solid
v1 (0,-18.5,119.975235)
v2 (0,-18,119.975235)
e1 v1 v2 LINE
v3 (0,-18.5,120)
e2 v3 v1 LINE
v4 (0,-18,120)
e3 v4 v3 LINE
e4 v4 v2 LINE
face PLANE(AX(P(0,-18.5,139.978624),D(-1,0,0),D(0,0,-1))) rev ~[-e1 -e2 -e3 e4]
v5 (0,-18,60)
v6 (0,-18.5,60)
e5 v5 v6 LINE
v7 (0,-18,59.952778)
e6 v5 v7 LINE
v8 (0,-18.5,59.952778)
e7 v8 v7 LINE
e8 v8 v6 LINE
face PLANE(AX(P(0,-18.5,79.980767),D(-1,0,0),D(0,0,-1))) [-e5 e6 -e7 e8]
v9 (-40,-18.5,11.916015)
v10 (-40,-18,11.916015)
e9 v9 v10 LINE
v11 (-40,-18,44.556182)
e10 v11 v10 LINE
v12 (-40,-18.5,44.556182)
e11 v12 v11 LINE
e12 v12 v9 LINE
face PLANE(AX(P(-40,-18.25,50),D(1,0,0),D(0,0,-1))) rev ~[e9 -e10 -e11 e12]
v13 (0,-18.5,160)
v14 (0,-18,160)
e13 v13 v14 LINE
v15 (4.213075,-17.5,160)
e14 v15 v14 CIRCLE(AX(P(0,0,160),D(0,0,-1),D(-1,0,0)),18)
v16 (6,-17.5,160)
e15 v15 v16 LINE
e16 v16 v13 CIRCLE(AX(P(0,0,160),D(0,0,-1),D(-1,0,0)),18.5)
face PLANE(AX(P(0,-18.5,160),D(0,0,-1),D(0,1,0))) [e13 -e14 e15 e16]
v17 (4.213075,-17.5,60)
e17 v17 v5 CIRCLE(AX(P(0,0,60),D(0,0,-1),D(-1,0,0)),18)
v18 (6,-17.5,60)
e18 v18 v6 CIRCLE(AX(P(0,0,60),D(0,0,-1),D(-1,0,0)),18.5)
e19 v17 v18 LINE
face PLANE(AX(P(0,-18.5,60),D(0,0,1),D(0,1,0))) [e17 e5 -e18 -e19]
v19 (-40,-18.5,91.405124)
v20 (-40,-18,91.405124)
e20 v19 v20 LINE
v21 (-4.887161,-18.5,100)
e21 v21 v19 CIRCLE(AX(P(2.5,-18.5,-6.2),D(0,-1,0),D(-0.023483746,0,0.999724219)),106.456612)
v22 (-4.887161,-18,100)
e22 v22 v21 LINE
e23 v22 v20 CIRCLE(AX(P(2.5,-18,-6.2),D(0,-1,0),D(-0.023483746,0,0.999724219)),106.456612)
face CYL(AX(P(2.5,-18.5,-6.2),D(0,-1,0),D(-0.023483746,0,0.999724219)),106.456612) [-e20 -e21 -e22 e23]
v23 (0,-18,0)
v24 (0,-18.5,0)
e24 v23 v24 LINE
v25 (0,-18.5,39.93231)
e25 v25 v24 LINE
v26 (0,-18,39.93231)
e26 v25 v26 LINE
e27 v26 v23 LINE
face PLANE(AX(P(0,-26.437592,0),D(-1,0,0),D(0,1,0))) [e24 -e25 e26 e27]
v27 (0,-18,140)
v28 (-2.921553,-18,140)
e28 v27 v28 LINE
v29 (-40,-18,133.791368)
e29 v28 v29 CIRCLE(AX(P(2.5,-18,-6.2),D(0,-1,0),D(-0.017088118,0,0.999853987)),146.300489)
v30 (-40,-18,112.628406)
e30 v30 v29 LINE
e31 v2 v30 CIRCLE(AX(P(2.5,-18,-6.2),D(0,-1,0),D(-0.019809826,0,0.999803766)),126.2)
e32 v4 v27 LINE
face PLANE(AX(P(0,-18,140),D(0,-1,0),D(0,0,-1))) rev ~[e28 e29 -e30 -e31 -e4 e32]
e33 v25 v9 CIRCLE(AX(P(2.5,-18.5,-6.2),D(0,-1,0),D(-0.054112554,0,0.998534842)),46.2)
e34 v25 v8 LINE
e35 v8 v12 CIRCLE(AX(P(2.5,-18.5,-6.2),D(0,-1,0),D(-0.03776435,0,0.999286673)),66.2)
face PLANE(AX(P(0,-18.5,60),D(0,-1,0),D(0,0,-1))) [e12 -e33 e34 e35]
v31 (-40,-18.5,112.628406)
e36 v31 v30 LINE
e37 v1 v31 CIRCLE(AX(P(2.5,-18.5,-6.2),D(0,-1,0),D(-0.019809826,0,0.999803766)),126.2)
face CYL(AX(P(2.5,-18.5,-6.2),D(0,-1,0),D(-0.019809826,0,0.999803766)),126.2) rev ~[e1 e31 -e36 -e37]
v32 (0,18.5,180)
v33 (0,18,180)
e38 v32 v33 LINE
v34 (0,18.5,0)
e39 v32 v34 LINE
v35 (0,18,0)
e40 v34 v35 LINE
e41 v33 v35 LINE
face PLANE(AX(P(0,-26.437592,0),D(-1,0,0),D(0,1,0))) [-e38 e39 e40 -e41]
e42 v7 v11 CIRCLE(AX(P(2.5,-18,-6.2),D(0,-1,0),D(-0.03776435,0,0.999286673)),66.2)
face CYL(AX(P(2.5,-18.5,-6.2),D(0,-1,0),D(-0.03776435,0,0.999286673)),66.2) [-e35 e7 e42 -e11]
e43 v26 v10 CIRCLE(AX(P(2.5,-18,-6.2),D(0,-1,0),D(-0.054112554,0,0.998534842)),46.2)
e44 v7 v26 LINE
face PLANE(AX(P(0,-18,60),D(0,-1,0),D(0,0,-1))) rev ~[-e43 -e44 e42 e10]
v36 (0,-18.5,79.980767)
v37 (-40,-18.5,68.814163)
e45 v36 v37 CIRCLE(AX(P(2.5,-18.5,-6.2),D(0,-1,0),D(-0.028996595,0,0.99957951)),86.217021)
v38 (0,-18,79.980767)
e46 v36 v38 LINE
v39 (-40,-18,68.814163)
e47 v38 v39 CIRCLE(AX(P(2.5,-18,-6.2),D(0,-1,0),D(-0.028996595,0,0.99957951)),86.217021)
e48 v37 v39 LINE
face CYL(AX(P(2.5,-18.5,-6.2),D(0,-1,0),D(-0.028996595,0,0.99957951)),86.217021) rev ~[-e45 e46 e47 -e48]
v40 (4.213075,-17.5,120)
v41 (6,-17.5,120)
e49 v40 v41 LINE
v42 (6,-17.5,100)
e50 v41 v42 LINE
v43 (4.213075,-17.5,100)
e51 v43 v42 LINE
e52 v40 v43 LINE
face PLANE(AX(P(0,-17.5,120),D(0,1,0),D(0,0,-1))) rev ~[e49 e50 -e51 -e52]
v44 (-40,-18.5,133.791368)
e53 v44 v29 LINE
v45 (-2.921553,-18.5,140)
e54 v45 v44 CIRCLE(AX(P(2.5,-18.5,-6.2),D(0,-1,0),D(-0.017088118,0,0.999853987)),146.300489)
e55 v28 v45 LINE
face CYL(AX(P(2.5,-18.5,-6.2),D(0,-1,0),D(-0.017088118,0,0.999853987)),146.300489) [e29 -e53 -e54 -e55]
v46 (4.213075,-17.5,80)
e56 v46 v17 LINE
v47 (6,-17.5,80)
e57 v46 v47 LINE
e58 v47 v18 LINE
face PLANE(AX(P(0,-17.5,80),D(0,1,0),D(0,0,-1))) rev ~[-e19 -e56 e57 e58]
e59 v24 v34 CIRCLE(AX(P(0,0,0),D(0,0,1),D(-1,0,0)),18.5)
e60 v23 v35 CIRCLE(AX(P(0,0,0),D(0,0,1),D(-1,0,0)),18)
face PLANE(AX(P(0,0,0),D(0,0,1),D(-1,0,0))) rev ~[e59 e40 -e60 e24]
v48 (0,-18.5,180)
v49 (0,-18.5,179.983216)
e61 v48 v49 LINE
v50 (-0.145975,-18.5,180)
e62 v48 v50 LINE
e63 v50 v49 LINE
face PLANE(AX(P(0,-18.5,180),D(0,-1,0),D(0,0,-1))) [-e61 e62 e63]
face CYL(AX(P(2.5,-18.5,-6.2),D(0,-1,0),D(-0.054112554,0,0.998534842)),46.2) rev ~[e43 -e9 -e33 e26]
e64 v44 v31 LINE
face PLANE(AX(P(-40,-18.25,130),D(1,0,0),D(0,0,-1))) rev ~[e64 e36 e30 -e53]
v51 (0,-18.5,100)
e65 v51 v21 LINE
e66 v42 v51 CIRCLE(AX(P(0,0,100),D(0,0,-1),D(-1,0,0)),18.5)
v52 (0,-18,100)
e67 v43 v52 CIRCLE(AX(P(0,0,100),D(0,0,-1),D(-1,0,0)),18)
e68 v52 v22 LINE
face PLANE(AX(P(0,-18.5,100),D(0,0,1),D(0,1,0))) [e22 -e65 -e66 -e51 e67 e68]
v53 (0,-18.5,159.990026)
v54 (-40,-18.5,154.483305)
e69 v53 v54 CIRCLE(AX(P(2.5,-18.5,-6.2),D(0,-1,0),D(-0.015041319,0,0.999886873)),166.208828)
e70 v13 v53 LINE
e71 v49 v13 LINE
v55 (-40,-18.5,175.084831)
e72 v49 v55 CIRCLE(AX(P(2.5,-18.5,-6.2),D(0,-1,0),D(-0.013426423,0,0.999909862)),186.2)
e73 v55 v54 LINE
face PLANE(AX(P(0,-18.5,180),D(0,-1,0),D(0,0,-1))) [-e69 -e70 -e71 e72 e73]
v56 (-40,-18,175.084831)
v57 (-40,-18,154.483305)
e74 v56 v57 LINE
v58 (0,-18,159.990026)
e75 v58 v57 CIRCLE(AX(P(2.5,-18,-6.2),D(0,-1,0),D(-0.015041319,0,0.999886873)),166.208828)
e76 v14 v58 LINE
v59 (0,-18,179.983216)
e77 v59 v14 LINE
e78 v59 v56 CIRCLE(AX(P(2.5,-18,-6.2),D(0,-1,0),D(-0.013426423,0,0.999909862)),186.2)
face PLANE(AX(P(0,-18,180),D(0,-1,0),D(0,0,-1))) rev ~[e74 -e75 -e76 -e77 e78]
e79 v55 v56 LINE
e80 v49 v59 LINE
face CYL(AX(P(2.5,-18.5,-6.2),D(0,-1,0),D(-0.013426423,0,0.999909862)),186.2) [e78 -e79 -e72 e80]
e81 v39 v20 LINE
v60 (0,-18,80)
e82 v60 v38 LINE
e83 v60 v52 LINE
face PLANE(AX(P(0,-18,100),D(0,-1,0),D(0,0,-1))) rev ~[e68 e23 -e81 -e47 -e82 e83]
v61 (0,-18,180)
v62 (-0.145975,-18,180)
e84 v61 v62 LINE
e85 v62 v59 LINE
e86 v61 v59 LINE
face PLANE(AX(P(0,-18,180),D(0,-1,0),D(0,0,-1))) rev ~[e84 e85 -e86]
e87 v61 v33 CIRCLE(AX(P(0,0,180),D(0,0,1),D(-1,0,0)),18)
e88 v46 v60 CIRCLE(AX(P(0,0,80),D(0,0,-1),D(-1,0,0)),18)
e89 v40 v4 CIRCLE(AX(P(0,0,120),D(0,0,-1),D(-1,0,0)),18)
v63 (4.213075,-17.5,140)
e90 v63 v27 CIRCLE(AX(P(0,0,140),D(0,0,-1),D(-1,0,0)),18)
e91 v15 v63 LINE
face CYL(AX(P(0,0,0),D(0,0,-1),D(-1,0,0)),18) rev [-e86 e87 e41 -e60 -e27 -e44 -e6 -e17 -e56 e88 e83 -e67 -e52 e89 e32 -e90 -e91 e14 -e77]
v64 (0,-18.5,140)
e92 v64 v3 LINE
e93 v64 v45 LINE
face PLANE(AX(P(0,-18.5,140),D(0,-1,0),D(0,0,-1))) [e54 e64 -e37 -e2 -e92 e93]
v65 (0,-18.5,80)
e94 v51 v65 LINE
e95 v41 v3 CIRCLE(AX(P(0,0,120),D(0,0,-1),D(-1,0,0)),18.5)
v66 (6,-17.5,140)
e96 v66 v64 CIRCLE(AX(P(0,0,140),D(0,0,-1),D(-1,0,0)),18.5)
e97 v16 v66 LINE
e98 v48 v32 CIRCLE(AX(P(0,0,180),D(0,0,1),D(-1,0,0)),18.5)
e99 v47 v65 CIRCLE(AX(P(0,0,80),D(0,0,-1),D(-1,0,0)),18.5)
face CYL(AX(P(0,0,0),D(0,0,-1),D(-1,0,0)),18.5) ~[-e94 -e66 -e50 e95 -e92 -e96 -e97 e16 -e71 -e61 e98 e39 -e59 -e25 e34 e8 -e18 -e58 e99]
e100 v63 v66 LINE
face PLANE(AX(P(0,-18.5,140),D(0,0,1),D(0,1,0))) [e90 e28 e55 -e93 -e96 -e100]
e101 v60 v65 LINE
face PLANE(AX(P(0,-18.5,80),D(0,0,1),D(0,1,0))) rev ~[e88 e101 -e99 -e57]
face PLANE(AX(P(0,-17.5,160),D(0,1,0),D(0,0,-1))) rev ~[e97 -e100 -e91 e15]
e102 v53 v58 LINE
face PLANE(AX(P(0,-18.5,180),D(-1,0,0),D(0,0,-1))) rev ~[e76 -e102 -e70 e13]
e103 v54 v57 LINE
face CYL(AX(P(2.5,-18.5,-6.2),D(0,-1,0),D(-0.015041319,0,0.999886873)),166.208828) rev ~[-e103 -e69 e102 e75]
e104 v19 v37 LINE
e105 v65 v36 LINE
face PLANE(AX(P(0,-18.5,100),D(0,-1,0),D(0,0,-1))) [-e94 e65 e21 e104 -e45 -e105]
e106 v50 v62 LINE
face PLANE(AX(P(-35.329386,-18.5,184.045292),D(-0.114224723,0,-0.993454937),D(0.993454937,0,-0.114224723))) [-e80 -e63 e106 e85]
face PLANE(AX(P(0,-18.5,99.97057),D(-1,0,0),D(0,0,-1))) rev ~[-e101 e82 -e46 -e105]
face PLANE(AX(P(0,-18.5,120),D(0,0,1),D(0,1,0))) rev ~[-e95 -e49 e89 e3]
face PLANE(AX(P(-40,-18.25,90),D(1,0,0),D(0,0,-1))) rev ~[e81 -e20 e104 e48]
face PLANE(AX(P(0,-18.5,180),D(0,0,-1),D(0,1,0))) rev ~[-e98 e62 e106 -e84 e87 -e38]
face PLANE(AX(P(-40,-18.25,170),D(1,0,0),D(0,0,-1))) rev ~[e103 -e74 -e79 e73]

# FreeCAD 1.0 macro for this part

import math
import FreeCAD as App
import Part
import Sketcher


def add_polygon(sketch, points):
    """Adds a closed chain of lines whose ends are joined by coincident constraints."""
    first, n = sketch.GeometryCount, len(points)
    for a, b in zip(points, points[1:] + points[:1]):
        sketch.addGeometry(Part.LineSegment(App.Vector(*a, 0), App.Vector(*b, 0)), False)
    for i in range(n):
        sketch.addConstraint(Sketcher.Constraint("Coincident", first + i, 2, first + (i + 1) % n, 1))

doc = App.newDocument("Part")
body = doc.addObject("PartDesign::Body", "Body")

# Sketch on XY plane
sketch1 = doc.addObject("Sketcher::SketchObject", "Sketch")
body.addObject(sketch1)
sketch1.AttachmentSupport = (doc.XY_Plane, [""])
sketch1.MapMode = "FlatFace"
sketch1.addGeometry([
    Part.Circle(App.Vector(0, 0, 0), App.Vector(0, 0, 1), 18),
    Part.Circle(App.Vector(0, 0, 0), App.Vector(0, 0, 1), 18),
], False)
sketch1.addConstraint([
    Sketcher.Constraint("Coincident", 0, 3, -1, 1),
    Sketcher.Constraint("Coincident", 1, 3, -1, 1),
    Sketcher.Constraint("Diameter", 0, 37.0),
    Sketcher.Constraint("Diameter", 1, 36.0),
])
pad1 = doc.addObject("PartDesign::Pad", "Pad")
body.addObject(pad1)
pad1.Profile = sketch1
pad1.Length = 180

# Sketch on XY plane
sketch2 = doc.addObject("Sketcher::SketchObject", "Sketch001")
body.addObject(sketch2)
sketch2.AttachmentSupport = (doc.XY_Plane, [""])
sketch2.MapMode = "FlatFace"
add_polygon(sketch2, [(0, 22), (0, -26), (-20, -26), (-20, 22)])  # lines 0-3
sketch2.addConstraint([
    Sketcher.Constraint("Vertical", 0),
    Sketcher.Constraint("Horizontal", 1),
    Sketcher.Constraint("Vertical", 2),
    Sketcher.Constraint("Horizontal", 3),
    Sketcher.Constraint("PointOnObject", 0, 2, -2),
    Sketcher.Constraint("DistanceX", 1, 2, 1, 1, 19.647344),
    Sketcher.Constraint("DistanceY", 0, 2, 0, 1, 48.423014),
    Sketcher.Constraint("DistanceY", 0, 2, -1, 1, 26.437592),
])
pocket1 = doc.addObject("PartDesign::Pocket", "Pocket")
body.addObject(pocket1)
pocket1.Profile = sketch2
pocket1.Length = 417
pocket1.Midplane = True

# Sketch on YZ plane
sketch3 = doc.addObject("Sketcher::SketchObject", "Sketch002")
body.addObject(sketch3)
sketch3.AttachmentSupport = (doc.YZ_Plane, [""])
sketch3.MapMode = "FlatFace"
add_polygon(sketch3, [(-18, 100), (-18.5, 100), (-18.5, 80), (-18, 80)])  # lines 0-3
add_polygon(sketch3, [(-18, 60), (-18.5, 60), (-18.5, 40), (-18, 40)])  # lines 4-7
add_polygon(sketch3, [(-18, 140), (-18.5, 140), (-18.5, 120), (-18, 120)])  # lines 8-11
add_polygon(sketch3, [(-18, 180), (-18.5, 180), (-18.5, 160), (-18, 160)])  # lines 12-15
sketch3.addConstraint([
    Sketcher.Constraint("Horizontal", 0),
    Sketcher.Constraint("Vertical", 1),
    Sketcher.Constraint("Horizontal", 2),
    Sketcher.Constraint("Vertical", 3),
    Sketcher.Constraint("Horizontal", 4),
    Sketcher.Constraint("Vertical", 5),
    Sketcher.Constraint("Horizontal", 6),
    Sketcher.Constraint("Vertical", 7),
    Sketcher.Constraint("Horizontal", 8),
    Sketcher.Constraint("Vertical", 9),
    Sketcher.Constraint("Horizontal", 10),
    Sketcher.Constraint("Vertical", 11),
    Sketcher.Constraint("Horizontal", 12),
    Sketcher.Constraint("Vertical", 13),
    Sketcher.Constraint("Horizontal", 14),
    Sketcher.Constraint("Vertical", 15),
    Sketcher.Constraint("Vertical", 1, 2, 4, 2),
    Sketcher.Constraint("Vertical", 3, 2, 6, 2),
    Sketcher.Constraint("Vertical", 5, 2, 8, 2),
    Sketcher.Constraint("Vertical", 7, 2, 10, 2),
    Sketcher.Constraint("Vertical", 9, 2, 12, 2),
    Sketcher.Constraint("Vertical", 11, 2, 14, 2),
    Sketcher.Constraint("Equal", 3, 5),
    Sketcher.Constraint("Equal", 7, 9),
    Sketcher.Constraint("Equal", 11, 13),
    Sketcher.Constraint("DistanceY", 1, 2, 1, 1, 20.0),
    Sketcher.Constraint("DistanceX", 0, 2, 0, 1, 0.5),
    Sketcher.Constraint("DistanceY", -1, 1, 0, 2, 100.0),
    Sketcher.Constraint("DistanceX", 2, 2, -1, 1, 18.0),
    Sketcher.Constraint("DistanceY", -1, 1, 4, 2, 60.0),
    Sketcher.Constraint("DistanceY", -1, 1, 8, 2, 140.0),
    Sketcher.Constraint("DistanceY", -1, 1, 12, 2, 180.0),
])
pad2 = doc.addObject("PartDesign::Pad", "Pad001")
body.addObject(pad2)
pad2.Profile = sketch3
pad2.Length = 40
pad2.Reversed = True

# Sketch on YZ plane
sketch4 = doc.addObject("Sketcher::SketchObject", "Sketch003")
body.addObject(sketch4)
sketch4.AttachmentSupport = (doc.YZ_Plane, [""])
sketch4.MapMode = "FlatFace"
add_polygon(sketch4, [(-17.5, 120), (-18.5, 120), (-18.5, 100), (-17.5, 100)])  # lines 0-3
add_polygon(sketch4, [(-17.5, 160), (-18.5, 160), (-18.5, 140), (-17.5, 140)])  # lines 4-7
add_polygon(sketch4, [(-17.5, 80), (-18.5, 80), (-18.5, 60), (-17.5, 60)])  # lines 8-11
sketch4.addConstraint([
    Sketcher.Constraint("Horizontal", 0),
    Sketcher.Constraint("Vertical", 1),
    Sketcher.Constraint("Horizontal", 2),
    Sketcher.Constraint("Vertical", 3),
    Sketcher.Constraint("Horizontal", 4),
    Sketcher.Constraint("Vertical", 5),
    Sketcher.Constraint("Horizontal", 6),
    Sketcher.Constraint("Vertical", 7),
    Sketcher.Constraint("Horizontal", 8),
    Sketcher.Constraint("Vertical", 9),
    Sketcher.Constraint("Horizontal", 10),
    Sketcher.Constraint("Vertical", 11),
    Sketcher.Constraint("Vertical", 1, 2, 4, 2),
    Sketcher.Constraint("Vertical", 3, 2, 6, 2),
    Sketcher.Constraint("Vertical", 5, 2, 8, 2),
    Sketcher.Constraint("Vertical", 7, 2, 10, 2),
    Sketcher.Constraint("Equal", 3, 5),
    Sketcher.Constraint("Equal", 7, 9),
    Sketcher.Constraint("DistanceX", 0, 2, 0, 1, 1.0),
    Sketcher.Constraint("DistanceY", 1, 2, 1, 1, 20.0),
    Sketcher.Constraint("DistanceY", -1, 1, 0, 2, 120.0),
    Sketcher.Constraint("DistanceY", -1, 1, 4, 2, 160.0),
    Sketcher.Constraint("DistanceY", -1, 1, 8, 2, 80.0),
    Sketcher.Constraint("DistanceX", 0, 2, -1, 1, 18.5),
])
pocket2 = doc.addObject("PartDesign::Pocket", "Pocket001")
body.addObject(pocket2)
pocket2.Profile = sketch4
pocket2.Length = 40
pocket2.Reversed = True

# Sketch on XZ plane
sketch5 = doc.addObject("Sketcher::SketchObject", "Sketch004")
body.addObject(sketch5)
sketch5.AttachmentSupport = (doc.XZ_Plane, [""])
sketch5.MapMode = "FlatFace"
sketch5.AttachmentOffset = App.Placement(App.Vector(0, 0, 18.5), App.Rotation())
sketch5.addGeometry([
    Part.LineSegment(App.Vector(0, 40, 0), App.Vector(0, 60, 0)),  # 0
    Part.ArcOfCircle(Part.Circle(App.Vector(2, -6, 0), App.Vector(0, 0, 1), 66), math.radians(92), math.radians(130)),  # 1
    Part.LineSegment(App.Vector(-40, 45, 0), App.Vector(-40, 12, 0)),  # 2
    Part.ArcOfCircle(Part.Circle(App.Vector(2, -6, 0), App.Vector(0, 0, 1), 46), math.radians(93), math.radians(157)),  # 3
    Part.LineSegment(App.Vector(-40, 91, 0), App.Vector(-40, 69, 0)),  # 4
    Part.ArcOfCircle(Part.Circle(App.Vector(2, -6, 0), App.Vector(0, 0, 1), 86), math.radians(92), math.radians(120)),  # 5
    Part.LineSegment(App.Vector(0, 80, 0), App.Vector(0, 100, 0)),  # 6
    Part.ArcOfCircle(Part.Circle(App.Vector(2, -6, 0), App.Vector(0, 0, 1), 106), math.radians(91), math.radians(114)),  # 7
    Part.LineSegment(App.Vector(0, 160, 0), App.Vector(0, 180, 0)),  # 8
    Part.ArcOfCircle(Part.Circle(App.Vector(2, -6, 0), App.Vector(0, 0, 1), 186), math.radians(90.77), math.radians(103.19)),  # 9
    Part.LineSegment(App.Vector(-40, 175, 0), App.Vector(-40, 154, 0)),  # 10
    Part.ArcOfCircle(Part.Circle(App.Vector(3, -6, 0), App.Vector(0, 0, 1), 166), math.radians(90.86), math.radians(104.82)),  # 11
    Part.LineSegment(App.Vector(-40, 134, 0), App.Vector(-40, 113, 0)),  # 12
    Part.ArcOfCircle(Part.Circle(App.Vector(3, -6, 0), App.Vector(0, 0, 1), 126), math.radians(91.14), math.radians(109.68)),  # 13
    Part.LineSegment(App.Vector(0, 120, 0), App.Vector(0, 140, 0)),  # 14
    Part.ArcOfCircle(Part.Circle(App.Vector(2, -6, 0), App.Vector(0, 0, 1), 146), math.radians(90.98), math.radians(106.9)),  # 15
], False)
sketch5.addConstraint([
    Sketcher.Constraint("Coincident", 0, 2, 1, 1),
    Sketcher.Constraint("Coincident", 1, 2, 2, 1),
    Sketcher.Constraint("Coincident", 2, 2, 3, 2),
    Sketcher.Constraint("Coincident", 3, 1, 0, 1),
    Sketcher.Constraint("Coincident", 4, 2, 5, 2),
    Sketcher.Constraint("Coincident", 5, 1, 6, 1),
    Sketcher.Constraint("Coincident", 6, 2, 7, 1),
    Sketcher.Constraint("Coincident", 7, 2, 4, 1),
    Sketcher.Constraint("Coincident", 8, 2, 9, 1),
    Sketcher.Constraint("Coincident", 9, 2, 10, 1),
    Sketcher.Constraint("Coincident", 10, 2, 11, 2),
    Sketcher.Constraint("Coincident", 11, 1, 8, 1),
    Sketcher.Constraint("Coincident", 12, 2, 13, 2),
    Sketcher.Constraint("Coincident", 13, 1, 14, 1),
    Sketcher.Constraint("Coincident", 14, 2, 15, 1),
    Sketcher.Constraint("Coincident", 15, 2, 12, 1),
    Sketcher.Constraint("Vertical", 0),
    Sketcher.Constraint("Vertical", 2),
    Sketcher.Constraint("Vertical", 4),
    Sketcher.Constraint("Vertical", 6),
    Sketcher.Constraint("Vertical", 8),
    Sketcher.Constraint("Vertical", 10),
    Sketcher.Constraint("Vertical", 12),
    Sketcher.Constraint("Vertical", 14),
    Sketcher.Constraint("Coincident", 3, 3, 1, 3),
    Sketcher.Constraint("Coincident", 5, 3, 1, 3),
    Sketcher.Constraint("Coincident", 7, 3, 1, 3),
    Sketcher.Constraint("Coincident", 9, 3, 1, 3),
    Sketcher.Constraint("Coincident", 11, 3, 1, 3),
    Sketcher.Constraint("Coincident", 13, 3, 1, 3),
    Sketcher.Constraint("Coincident", 15, 3, 1, 3),
    Sketcher.Constraint("PointOnObject", 0, 2, -2),
    Sketcher.Constraint("PointOnObject", 5, 1, -2),
    Sketcher.Constraint("PointOnObject", 8, 2, -2),
    Sketcher.Constraint("PointOnObject", 13, 1, -2),
    Sketcher.Constraint("Vertical", 2, 2, 4, 2),
    Sketcher.Constraint("Vertical", 7, 2, 9, 2),
    Sketcher.Constraint("Vertical", 10, 2, 12, 2),
    Sketcher.Constraint("Radius", 1, 66.2),
    Sketcher.Constraint("Radius", 3, 46.2),
    Sketcher.Constraint("Radius", 7, 106.2),
    Sketcher.Constraint("Radius", 13, 126.2),
    Sketcher.Constraint("Radius", 15, 146.2),
    Sketcher.Constraint("DistanceX", 1, 2, -1, 1, 40.0),
    Sketcher.Constraint("DistanceY", -1, 1, 8, 2, 180.0),
    Sketcher.Constraint("DistanceX", -1, 1, 1, 3, 2.5),
    Sketcher.Constraint("DistanceY", 1, 3, -1, 1, 6.2),
    Sketcher.Constraint("Radius", 5, 86.217021),
    Sketcher.Constraint("Radius", 11, 166.208828),
])
pad3 = doc.addObject("PartDesign::Pad", "Pad002")
body.addObject(pad3)
pad3.Profile = sketch5
pad3.Length = 0.5
pad3.Reversed = True

# Sketch on XZ plane
sketch6 = doc.addObject("Sketcher::SketchObject", "Sketch005")
body.addObject(sketch6)
sketch6.AttachmentSupport = (doc.XZ_Plane, [""])
sketch6.MapMode = "FlatFace"
sketch6.AttachmentOffset = App.Placement(App.Vector(0, 0, 18.5), App.Rotation())
sketch6.addGeometry([
    Part.LineSegment(App.Vector(0, 60, 0), App.Vector(0, 80, 0)),  # 0
    Part.ArcOfCircle(Part.Circle(App.Vector(2.5, -6.2, 0), App.Vector(0, 0, 1), 86.2), math.radians(92), math.radians(120)),  # 1
    Part.LineSegment(App.Vector(-40, 68.8, 0), App.Vector(-40, 44.6, 0)),  # 2
    Part.ArcOfCircle(Part.Circle(App.Vector(2.5, -6.2, 0), App.Vector(0, 0, 1), 66.2), math.radians(92), math.radians(130)),  # 3
    Part.LineSegment(App.Vector(-40, 112.6, 0), App.Vector(-40, 91.4, 0)),  # 4
    Part.ArcOfCircle(Part.Circle(App.Vector(2.5, -6.2, 0), App.Vector(0, 0, 1), 106.5), math.radians(91), math.radians(114)),  # 5
    Part.LineSegment(App.Vector(0, 100.2, 0), App.Vector(0, 120, 0)),  # 6
    Part.ArcOfCircle(Part.Circle(App.Vector(2.5, -6.2, 0), App.Vector(0, 0, 1), 126.2), math.radians(91.14), math.radians(109.68)),  # 7
    Part.LineSegment(App.Vector(0, 140.1, 0), App.Vector(0, 160, 0)),  # 8
    Part.ArcOfCircle(Part.Circle(App.Vector(2.5, -6.2, 0), App.Vector(0, 0, 1), 166.2), math.radians(90.86), math.radians(104.82)),  # 9
    Part.LineSegment(App.Vector(-40, 154.5, 0), App.Vector(-40, 133.8, 0)),  # 10
    Part.ArcOfCircle(Part.Circle(App.Vector(2.5, -6.2, 0), App.Vector(0, 0, 1), 146.3), math.radians(90.98), math.radians(106.89)),  # 11
    Part.LineSegment(App.Vector(-40, 184.6, 0), App.Vector(-40, 175.1, 0)),  # 12
    Part.ArcOfCircle(Part.Circle(App.Vector(2.5, -6.2, 0), App.Vector(0, 0, 1), 186.2), math.radians(90.77), math.radians(103.19)),  # 13
    Part.LineSegment(App.Vector(0, 180, 0), App.Vector(-35.3, 184, 0)),  # 14
    Part.LineSegment(App.Vector(-35.3, 184, 0), App.Vector(-40, 184.6, 0)),  # 15
], False)
sketch6.addConstraint([
    Sketcher.Constraint("Coincident", 0, 2, 1, 1),
    Sketcher.Constraint("Coincident", 1, 2, 2, 1),
    Sketcher.Constraint("Coincident", 2, 2, 3, 2),
    Sketcher.Constraint("Coincident", 3, 1, 0, 1),
    Sketcher.Constraint("Coincident", 4, 2, 5, 2),
    Sketcher.Constraint("Coincident", 5, 1, 6, 1),
    Sketcher.Constraint("Coincident", 6, 2, 7, 1),
    Sketcher.Constraint("Coincident", 7, 2, 4, 1),
    Sketcher.Constraint("Coincident", 8, 2, 9, 1),
    Sketcher.Constraint("Coincident", 9, 2, 10, 1),
    Sketcher.Constraint("Coincident", 10, 2, 11, 2),
    Sketcher.Constraint("Coincident", 11, 1, 8, 1),
    Sketcher.Constraint("Coincident", 12, 2, 13, 2),
    Sketcher.Constraint("Coincident", 13, 1, 14, 1),
    Sketcher.Constraint("Coincident", 14, 2, 15, 1),
    Sketcher.Constraint("Coincident", 15, 2, 12, 1),
    Sketcher.Constraint("Vertical", 0),
    Sketcher.Constraint("Vertical", 2),
    Sketcher.Constraint("Vertical", 4),
    Sketcher.Constraint("Vertical", 6),
    Sketcher.Constraint("Vertical", 8),
    Sketcher.Constraint("Vertical", 10),
    Sketcher.Constraint("Vertical", 12),
    Sketcher.Constraint("Coincident", 3, 3, 1, 3),
    Sketcher.Constraint("Coincident", 5, 3, 1, 3),
    Sketcher.Constraint("Coincident", 7, 3, 1, 3),
    Sketcher.Constraint("Coincident", 9, 3, 1, 3),
    Sketcher.Constraint("Coincident", 11, 3, 1, 3),
    Sketcher.Constraint("Coincident", 13, 3, 1, 3),
    Sketcher.Constraint("PointOnObject", 0, 2, -2),
    Sketcher.Constraint("PointOnObject", 5, 1, -2),
    Sketcher.Constraint("PointOnObject", 8, 2, -2),
    Sketcher.Constraint("PointOnObject", 13, 1, -2),
    Sketcher.Constraint("Parallel", 14, 15),
    Sketcher.Constraint("Vertical", 2, 2, 4, 2),
    Sketcher.Constraint("Vertical", 7, 2, 9, 2),
    Sketcher.Constraint("Vertical", 10, 2, 12, 2),
    Sketcher.Constraint("Radius", 3, 66.2),
    Sketcher.Constraint("Radius", 7, 126.2),
    Sketcher.Constraint("Radius", 13, 186.2),
    Sketcher.Constraint("DistanceX", 1, 2, -1, 1, 40.0),
    Sketcher.Constraint("DistanceX", -1, 1, 1, 3, 2.5),
    Sketcher.Constraint("DistanceY", 1, 3, -1, 1, 6.2),
    Sketcher.Constraint("Radius", 1, 86.217021),
    Sketcher.Constraint("Radius", 5, 106.456612),
    Sketcher.Constraint("Radius", 9, 166.208828),
    Sketcher.Constraint("Radius", 11, 146.300489),
    Sketcher.Constraint("DistanceY", 9, 2, 15, 2, 30.099001),
    Sketcher.Constraint("DistanceY", 12, 2, 14, 2, 8.960461),
])
pocket3 = doc.addObject("PartDesign::Pocket", "Pocket002")
body.addObject(pocket3)
pocket3.Profile = sketch6
pocket3.Length = 0.5

doc.recompute()
